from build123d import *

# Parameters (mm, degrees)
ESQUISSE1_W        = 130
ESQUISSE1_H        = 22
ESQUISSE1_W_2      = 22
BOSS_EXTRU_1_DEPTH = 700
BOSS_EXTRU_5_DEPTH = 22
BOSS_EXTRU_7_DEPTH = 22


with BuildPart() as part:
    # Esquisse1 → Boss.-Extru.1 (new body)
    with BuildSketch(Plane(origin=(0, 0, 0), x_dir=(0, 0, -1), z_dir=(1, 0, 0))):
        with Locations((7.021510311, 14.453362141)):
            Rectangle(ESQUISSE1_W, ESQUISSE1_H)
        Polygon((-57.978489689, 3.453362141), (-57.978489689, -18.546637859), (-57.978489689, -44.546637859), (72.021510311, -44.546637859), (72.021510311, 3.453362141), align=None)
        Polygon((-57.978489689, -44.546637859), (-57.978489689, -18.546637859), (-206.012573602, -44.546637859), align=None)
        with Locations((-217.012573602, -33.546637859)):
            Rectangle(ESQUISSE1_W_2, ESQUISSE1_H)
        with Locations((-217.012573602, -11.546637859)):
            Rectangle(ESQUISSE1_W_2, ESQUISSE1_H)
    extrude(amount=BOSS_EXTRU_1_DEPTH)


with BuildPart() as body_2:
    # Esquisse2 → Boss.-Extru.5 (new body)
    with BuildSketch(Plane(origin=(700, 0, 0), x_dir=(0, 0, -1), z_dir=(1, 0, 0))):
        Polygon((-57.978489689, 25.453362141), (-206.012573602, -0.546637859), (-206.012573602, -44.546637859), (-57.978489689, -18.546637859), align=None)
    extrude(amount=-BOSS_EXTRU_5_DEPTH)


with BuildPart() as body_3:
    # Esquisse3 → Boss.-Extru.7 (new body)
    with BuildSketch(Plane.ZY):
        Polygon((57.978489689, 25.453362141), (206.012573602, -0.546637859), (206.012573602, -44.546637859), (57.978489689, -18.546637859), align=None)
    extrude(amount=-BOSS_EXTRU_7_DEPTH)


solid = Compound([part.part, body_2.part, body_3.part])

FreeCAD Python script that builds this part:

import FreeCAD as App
import Part
import Sketcher

V = App.Vector

doc = App.newDocument("Part")
body = doc.addObject("PartDesign::Body", "Body")
body.AllowCompound = True

sketch1 = body.newObject("Sketcher::SketchObject", "Sketch")
sketch1.AttachmentSupport = (doc.getObject("YZ_Plane"), [""])
sketch1.MapMode = "FlatFace"
sketch1.addGeometry([
    Part.LineSegment(V(25, 58, 0), V(-19, 58, 0)),
    Part.LineSegment(V(-19, 58, 0), V(-45, 206, 0)),
    Part.LineSegment(V(-45, 206, 0), V(-45, -72, 0)),
    Part.LineSegment(V(-45, -72, 0), V(25, -72, 0)),
    Part.LineSegment(V(25, -72, 0), V(25, 58, 0)),
    Part.LineSegment(V(-45, 228, 0), V(-45, 206, 0)),
    Part.LineSegment(V(-45, 206, 0), V(-1, 206, 0)),
    Part.LineSegment(V(-1, 206, 0), V(-1, 228, 0)),
    Part.LineSegment(V(-1, 228, 0), V(-45, 228, 0)),
], False)
sketch1.addConstraint([
    Sketcher.Constraint("Coincident", 0, 2, 1, 1),
    Sketcher.Constraint("Coincident", 1, 2, 2, 1),
    Sketcher.Constraint("Coincident", 2, 2, 3, 1),
    Sketcher.Constraint("Coincident", 3, 2, 4, 1),
    Sketcher.Constraint("Coincident", 4, 2, 0, 1),
    Sketcher.Constraint("Coincident", 5, 2, 6, 1),
    Sketcher.Constraint("Coincident", 6, 2, 7, 1),
    Sketcher.Constraint("Coincident", 7, 2, 8, 1),
    Sketcher.Constraint("Coincident", 8, 2, 5, 1),
    Sketcher.Constraint("Horizontal", 0),
    Sketcher.Constraint("Vertical", 2),
    Sketcher.Constraint("Horizontal", 3),
    Sketcher.Constraint("Vertical", 4),
    Sketcher.Constraint("Vertical", 5),
    Sketcher.Constraint("Horizontal", 6),
    Sketcher.Constraint("Vertical", 7),
    Sketcher.Constraint("Horizontal", 8),
    Sketcher.Constraint("Coincident", 5, 2, 1, 2),
    Sketcher.Constraint("Equal", 0, 6),
    Sketcher.Constraint("DistanceX", 0, 2, 0, 1, 44.0),
    Sketcher.Constraint("DistanceX", 3, 1, 3, 2, 70.0),
    Sketcher.Constraint("DistanceY", 4, 1, 4, 2, 130.0),
    Sketcher.Constraint("DistanceY", 5, 2, 5, 1, 22.0),
    Sketcher.Constraint("Distance", 1, 150.3),
    Sketcher.Constraint("DistanceY", -1, 1, 0, 2, 57.97849),
    Sketcher.Constraint("DistanceX", 0, 2, -1, 1, 18.546638),
])
pad1 = body.newObject("PartDesign::Pad", "Pad")
pad1.Profile = sketch1
pad1.Length = 700
body2 = doc.addObject("PartDesign::Body", "Body001")

sketch2 = body2.newObject("Sketcher::SketchObject", "Sketch001")
sketch2.AttachmentSupport = (doc.getObject("YZ_Plane001"), [""])
sketch2.MapMode = "FlatFace"
sketch2.AttachmentOffset = App.Placement(V(0, 0, 700), App.Rotation())
sketch2.addGeometry([
    Part.LineSegment(V(25, 58, 0), V(-1, 206, 0)),
    Part.LineSegment(V(-1, 206, 0), V(-45, 206, 0)),
    Part.LineSegment(V(-45, 206, 0), V(-19, 58, 0)),
    Part.LineSegment(V(-19, 58, 0), V(25, 58, 0)),
], False)
sketch2.addConstraint([
    Sketcher.Constraint("Coincident", 0, 2, 1, 1),
    Sketcher.Constraint("Coincident", 1, 2, 2, 1),
    Sketcher.Constraint("Coincident", 2, 2, 3, 1),
    Sketcher.Constraint("Coincident", 3, 2, 0, 1),
    Sketcher.Constraint("Horizontal", 1),
    Sketcher.Constraint("Horizontal", 3),
    Sketcher.Constraint("Parallel", 0, 2),
    Sketcher.Constraint("DistanceX", 1, 2, 1, 1, 44.0),
    Sketcher.Constraint("DistanceX", 2, 2, 0, 2, 18.0),
    Sketcher.Constraint("Distance", 0, 150.3),
    Sketcher.Constraint("DistanceY", -1, 1, 2, 2, 57.97849),
    Sketcher.Constraint("DistanceX", 0, 2, -1, 1, 0.546638),
])
pad2 = body2.newObject("PartDesign::Pad", "Pad001")
pad2.Profile = sketch2
pad2.Length = 22
pad2.Reversed = True
body3 = doc.addObject("PartDesign::Body", "Body002")

sketch3 = body3.newObject("Sketcher::SketchObject", "Sketch002")
sketch3.AttachmentSupport = (doc.getObject("YZ_Plane002"), [""])
sketch3.MapMode = "FlatFace"
sketch3.addGeometry([
    Part.LineSegment(V(-1, 206, 0), V(25, 58, 0)),
    Part.LineSegment(V(25, 58, 0), V(-19, 58, 0)),
    Part.LineSegment(V(-19, 58, 0), V(-45, 206, 0)),
    Part.LineSegment(V(-45, 206, 0), V(-1, 206, 0)),
], False)
sketch3.addConstraint([
    Sketcher.Constraint("Coincident", 0, 2, 1, 1),
    Sketcher.Constraint("Coincident", 1, 2, 2, 1),
    Sketcher.Constraint("Coincident", 2, 2, 3, 1),
    Sketcher.Constraint("Coincident", 3, 2, 0, 1),
    Sketcher.Constraint("Horizontal", 1),
    Sketcher.Constraint("Horizontal", 3),
    Sketcher.Constraint("Parallel", 0, 2),
    Sketcher.Constraint("DistanceX", 1, 2, 1, 1, 44.0),
    Sketcher.Constraint("DistanceX", 2, 2, 1, 2, 26.0),
    Sketcher.Constraint("Distance", 0, 150.3),
    Sketcher.Constraint("DistanceY", -1, 1, 0, 2, 57.97849),
    Sketcher.Constraint("DistanceX", -1, 1, 0, 2, 25.453362),
])
pad3 = body3.newObject("PartDesign::Pad", "Pad002")
pad3.Profile = sketch3
pad3.Length = 22

doc.recompute()
